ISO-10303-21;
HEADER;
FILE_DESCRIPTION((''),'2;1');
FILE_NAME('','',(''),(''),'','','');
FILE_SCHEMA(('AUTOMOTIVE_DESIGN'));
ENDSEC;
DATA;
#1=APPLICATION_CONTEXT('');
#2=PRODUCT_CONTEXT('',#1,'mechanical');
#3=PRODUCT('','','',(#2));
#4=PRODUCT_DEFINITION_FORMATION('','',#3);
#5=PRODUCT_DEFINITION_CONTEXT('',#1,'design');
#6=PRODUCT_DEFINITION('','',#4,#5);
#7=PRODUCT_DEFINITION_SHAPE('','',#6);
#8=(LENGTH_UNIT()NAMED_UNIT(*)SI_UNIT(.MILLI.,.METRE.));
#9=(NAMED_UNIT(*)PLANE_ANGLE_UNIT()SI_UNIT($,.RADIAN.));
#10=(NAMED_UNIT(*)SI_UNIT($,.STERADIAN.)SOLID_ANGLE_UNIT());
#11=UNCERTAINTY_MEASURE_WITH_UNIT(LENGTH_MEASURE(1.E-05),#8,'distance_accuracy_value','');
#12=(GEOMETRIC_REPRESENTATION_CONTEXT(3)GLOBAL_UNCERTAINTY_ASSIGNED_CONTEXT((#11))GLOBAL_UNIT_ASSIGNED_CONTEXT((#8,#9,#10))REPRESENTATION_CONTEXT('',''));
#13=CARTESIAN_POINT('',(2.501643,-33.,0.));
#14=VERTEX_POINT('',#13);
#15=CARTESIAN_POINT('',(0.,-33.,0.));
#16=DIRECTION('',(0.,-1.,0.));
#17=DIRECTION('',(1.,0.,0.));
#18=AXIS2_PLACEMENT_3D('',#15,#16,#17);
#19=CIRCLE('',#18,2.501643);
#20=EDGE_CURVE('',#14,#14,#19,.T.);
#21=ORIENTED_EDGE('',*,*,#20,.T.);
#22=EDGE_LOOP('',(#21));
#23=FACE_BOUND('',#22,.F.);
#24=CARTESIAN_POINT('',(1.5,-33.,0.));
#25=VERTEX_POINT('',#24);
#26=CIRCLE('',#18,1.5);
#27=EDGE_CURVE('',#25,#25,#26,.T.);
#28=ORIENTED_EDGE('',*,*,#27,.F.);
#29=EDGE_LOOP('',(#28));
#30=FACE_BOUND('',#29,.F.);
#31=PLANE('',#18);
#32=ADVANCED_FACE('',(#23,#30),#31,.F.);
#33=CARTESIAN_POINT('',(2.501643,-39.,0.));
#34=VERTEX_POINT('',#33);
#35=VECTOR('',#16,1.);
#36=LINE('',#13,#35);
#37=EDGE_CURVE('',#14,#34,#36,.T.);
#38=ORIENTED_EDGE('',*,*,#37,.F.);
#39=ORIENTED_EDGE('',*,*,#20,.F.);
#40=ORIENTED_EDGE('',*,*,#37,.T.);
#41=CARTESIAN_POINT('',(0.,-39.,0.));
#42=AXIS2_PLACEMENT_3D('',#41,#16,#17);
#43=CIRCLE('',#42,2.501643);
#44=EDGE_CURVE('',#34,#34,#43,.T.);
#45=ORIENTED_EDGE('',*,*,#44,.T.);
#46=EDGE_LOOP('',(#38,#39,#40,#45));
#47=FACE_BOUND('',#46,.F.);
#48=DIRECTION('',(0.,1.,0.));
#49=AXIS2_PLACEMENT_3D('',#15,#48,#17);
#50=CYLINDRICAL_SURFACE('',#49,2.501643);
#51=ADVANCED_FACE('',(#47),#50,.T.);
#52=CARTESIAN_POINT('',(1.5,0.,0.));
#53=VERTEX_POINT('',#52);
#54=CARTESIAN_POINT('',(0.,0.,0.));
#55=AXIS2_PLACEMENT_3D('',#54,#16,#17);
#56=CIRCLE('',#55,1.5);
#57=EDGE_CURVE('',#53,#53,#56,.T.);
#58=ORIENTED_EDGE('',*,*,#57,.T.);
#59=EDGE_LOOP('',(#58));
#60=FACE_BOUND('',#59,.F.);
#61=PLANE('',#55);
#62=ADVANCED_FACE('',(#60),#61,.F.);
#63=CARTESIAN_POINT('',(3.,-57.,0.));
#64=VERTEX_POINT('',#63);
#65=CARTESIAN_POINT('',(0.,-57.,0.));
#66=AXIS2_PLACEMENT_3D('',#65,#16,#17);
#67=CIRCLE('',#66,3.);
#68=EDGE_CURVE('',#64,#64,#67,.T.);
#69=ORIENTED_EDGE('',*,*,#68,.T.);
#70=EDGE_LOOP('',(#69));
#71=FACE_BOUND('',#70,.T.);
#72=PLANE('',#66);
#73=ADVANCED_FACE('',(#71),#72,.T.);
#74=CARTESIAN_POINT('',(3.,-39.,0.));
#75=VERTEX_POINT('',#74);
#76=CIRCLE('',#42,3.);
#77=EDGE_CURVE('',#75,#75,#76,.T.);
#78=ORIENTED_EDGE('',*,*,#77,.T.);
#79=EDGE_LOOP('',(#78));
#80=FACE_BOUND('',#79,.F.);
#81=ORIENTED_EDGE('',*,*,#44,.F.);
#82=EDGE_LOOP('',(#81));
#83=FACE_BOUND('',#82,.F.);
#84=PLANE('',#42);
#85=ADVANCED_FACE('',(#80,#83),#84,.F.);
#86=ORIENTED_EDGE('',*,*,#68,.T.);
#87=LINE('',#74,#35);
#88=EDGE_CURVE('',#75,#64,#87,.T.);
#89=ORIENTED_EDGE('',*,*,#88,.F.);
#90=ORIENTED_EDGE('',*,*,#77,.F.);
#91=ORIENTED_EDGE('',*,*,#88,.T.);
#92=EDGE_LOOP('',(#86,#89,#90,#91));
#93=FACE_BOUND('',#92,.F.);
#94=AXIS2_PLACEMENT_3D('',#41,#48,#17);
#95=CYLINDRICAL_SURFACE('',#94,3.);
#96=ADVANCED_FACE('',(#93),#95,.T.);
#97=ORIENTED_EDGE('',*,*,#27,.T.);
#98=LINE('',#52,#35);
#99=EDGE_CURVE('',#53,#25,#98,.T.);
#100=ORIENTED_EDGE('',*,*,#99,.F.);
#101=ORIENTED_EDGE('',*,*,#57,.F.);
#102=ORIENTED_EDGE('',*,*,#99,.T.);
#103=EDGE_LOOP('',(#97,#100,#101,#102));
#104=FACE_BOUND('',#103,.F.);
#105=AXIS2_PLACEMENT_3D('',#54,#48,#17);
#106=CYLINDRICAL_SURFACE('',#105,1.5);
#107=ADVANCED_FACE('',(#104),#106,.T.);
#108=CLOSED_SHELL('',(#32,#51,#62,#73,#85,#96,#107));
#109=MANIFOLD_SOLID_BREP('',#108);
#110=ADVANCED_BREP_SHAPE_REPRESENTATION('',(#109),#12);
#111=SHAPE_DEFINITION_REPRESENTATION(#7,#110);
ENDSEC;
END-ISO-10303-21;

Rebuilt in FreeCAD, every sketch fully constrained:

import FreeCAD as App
import Part
import Sketcher

V = App.Vector

doc = App.newDocument("Part")
params = doc.addObject("Spreadsheet::Sheet", "Params")
for row, (alias, value) in enumerate([
    ("sketch1_diameter", "3 mm"),
    ("pad1_length", "33 mm"),
    ("pad2_length", "6 mm"),
    ("sketch3_diameter", "6 mm"),
    ("pad3_length", "18 mm"),
], start=1):
    params.set(f"A{row}", alias)
    params.set(f"B{row}", "=" + value)
    params.setAlias(f"B{row}", alias)

body = doc.addObject("PartDesign::Body", "Body")

sketch1 = body.newObject("Sketcher::SketchObject", "Sketch")
sketch1.AttachmentSupport = (doc.getObject("XZ_Plane"), [""])
sketch1.MapMode = "FlatFace"
sketch1.addGeometry(Part.Circle(V(0, 0, 0), V(0, 0, 1), 1.5), False)
sketch1.addConstraint([
    Sketcher.Constraint("Coincident", 0, 3, -1, 1),
    Sketcher.Constraint("Diameter", 0, 3.0),
])
sketch1.setExpression("Constraints[1]", "Params.sketch1_diameter")
pad1 = body.newObject("PartDesign::Pad", "Pad")
pad1.Profile = sketch1
pad1.setExpression("Length", "Params.pad1_length")

sketch2 = body.newObject("Sketcher::SketchObject", "Sketch001")
sketch2.AttachmentSupport = (doc.getObject("XZ_Plane"), [""])
sketch2.MapMode = "FlatFace"
sketch2.AttachmentOffset = App.Placement(V(0, 0, 33), App.Rotation())
sketch2.addGeometry(Part.Circle(V(0, 0, 0), V(0, 0, 1), 2.5), False)
sketch2.addConstraint([
    Sketcher.Constraint("Coincident", 0, 3, -1, 1),
    Sketcher.Constraint("Diameter", 0, 5.003285),
])
pad2 = body.newObject("PartDesign::Pad", "Pad001")
pad2.Profile = sketch2
pad2.setExpression("Length", "Params.pad2_length")

sketch3 = body.newObject("Sketcher::SketchObject", "Sketch002")
sketch3.AttachmentSupport = (doc.getObject("XZ_Plane"), [""])
sketch3.MapMode = "FlatFace"
sketch3.AttachmentOffset = App.Placement(V(0, 0, 39), App.Rotation())
sketch3.addGeometry(Part.Circle(V(0, 0, 0), V(0, 0, 1), 3), False)
sketch3.addConstraint([
    Sketcher.Constraint("Coincident", 0, 3, -1, 1),
    Sketcher.Constraint("Diameter", 0, 6.0),
])
sketch3.setExpression("Constraints[1]", "Params.sketch3_diameter")
pad3 = body.newObject("PartDesign::Pad", "Pad002")
pad3.Profile = sketch3
pad3.setExpression("Length", "Params.pad3_length")

doc.recompute()
